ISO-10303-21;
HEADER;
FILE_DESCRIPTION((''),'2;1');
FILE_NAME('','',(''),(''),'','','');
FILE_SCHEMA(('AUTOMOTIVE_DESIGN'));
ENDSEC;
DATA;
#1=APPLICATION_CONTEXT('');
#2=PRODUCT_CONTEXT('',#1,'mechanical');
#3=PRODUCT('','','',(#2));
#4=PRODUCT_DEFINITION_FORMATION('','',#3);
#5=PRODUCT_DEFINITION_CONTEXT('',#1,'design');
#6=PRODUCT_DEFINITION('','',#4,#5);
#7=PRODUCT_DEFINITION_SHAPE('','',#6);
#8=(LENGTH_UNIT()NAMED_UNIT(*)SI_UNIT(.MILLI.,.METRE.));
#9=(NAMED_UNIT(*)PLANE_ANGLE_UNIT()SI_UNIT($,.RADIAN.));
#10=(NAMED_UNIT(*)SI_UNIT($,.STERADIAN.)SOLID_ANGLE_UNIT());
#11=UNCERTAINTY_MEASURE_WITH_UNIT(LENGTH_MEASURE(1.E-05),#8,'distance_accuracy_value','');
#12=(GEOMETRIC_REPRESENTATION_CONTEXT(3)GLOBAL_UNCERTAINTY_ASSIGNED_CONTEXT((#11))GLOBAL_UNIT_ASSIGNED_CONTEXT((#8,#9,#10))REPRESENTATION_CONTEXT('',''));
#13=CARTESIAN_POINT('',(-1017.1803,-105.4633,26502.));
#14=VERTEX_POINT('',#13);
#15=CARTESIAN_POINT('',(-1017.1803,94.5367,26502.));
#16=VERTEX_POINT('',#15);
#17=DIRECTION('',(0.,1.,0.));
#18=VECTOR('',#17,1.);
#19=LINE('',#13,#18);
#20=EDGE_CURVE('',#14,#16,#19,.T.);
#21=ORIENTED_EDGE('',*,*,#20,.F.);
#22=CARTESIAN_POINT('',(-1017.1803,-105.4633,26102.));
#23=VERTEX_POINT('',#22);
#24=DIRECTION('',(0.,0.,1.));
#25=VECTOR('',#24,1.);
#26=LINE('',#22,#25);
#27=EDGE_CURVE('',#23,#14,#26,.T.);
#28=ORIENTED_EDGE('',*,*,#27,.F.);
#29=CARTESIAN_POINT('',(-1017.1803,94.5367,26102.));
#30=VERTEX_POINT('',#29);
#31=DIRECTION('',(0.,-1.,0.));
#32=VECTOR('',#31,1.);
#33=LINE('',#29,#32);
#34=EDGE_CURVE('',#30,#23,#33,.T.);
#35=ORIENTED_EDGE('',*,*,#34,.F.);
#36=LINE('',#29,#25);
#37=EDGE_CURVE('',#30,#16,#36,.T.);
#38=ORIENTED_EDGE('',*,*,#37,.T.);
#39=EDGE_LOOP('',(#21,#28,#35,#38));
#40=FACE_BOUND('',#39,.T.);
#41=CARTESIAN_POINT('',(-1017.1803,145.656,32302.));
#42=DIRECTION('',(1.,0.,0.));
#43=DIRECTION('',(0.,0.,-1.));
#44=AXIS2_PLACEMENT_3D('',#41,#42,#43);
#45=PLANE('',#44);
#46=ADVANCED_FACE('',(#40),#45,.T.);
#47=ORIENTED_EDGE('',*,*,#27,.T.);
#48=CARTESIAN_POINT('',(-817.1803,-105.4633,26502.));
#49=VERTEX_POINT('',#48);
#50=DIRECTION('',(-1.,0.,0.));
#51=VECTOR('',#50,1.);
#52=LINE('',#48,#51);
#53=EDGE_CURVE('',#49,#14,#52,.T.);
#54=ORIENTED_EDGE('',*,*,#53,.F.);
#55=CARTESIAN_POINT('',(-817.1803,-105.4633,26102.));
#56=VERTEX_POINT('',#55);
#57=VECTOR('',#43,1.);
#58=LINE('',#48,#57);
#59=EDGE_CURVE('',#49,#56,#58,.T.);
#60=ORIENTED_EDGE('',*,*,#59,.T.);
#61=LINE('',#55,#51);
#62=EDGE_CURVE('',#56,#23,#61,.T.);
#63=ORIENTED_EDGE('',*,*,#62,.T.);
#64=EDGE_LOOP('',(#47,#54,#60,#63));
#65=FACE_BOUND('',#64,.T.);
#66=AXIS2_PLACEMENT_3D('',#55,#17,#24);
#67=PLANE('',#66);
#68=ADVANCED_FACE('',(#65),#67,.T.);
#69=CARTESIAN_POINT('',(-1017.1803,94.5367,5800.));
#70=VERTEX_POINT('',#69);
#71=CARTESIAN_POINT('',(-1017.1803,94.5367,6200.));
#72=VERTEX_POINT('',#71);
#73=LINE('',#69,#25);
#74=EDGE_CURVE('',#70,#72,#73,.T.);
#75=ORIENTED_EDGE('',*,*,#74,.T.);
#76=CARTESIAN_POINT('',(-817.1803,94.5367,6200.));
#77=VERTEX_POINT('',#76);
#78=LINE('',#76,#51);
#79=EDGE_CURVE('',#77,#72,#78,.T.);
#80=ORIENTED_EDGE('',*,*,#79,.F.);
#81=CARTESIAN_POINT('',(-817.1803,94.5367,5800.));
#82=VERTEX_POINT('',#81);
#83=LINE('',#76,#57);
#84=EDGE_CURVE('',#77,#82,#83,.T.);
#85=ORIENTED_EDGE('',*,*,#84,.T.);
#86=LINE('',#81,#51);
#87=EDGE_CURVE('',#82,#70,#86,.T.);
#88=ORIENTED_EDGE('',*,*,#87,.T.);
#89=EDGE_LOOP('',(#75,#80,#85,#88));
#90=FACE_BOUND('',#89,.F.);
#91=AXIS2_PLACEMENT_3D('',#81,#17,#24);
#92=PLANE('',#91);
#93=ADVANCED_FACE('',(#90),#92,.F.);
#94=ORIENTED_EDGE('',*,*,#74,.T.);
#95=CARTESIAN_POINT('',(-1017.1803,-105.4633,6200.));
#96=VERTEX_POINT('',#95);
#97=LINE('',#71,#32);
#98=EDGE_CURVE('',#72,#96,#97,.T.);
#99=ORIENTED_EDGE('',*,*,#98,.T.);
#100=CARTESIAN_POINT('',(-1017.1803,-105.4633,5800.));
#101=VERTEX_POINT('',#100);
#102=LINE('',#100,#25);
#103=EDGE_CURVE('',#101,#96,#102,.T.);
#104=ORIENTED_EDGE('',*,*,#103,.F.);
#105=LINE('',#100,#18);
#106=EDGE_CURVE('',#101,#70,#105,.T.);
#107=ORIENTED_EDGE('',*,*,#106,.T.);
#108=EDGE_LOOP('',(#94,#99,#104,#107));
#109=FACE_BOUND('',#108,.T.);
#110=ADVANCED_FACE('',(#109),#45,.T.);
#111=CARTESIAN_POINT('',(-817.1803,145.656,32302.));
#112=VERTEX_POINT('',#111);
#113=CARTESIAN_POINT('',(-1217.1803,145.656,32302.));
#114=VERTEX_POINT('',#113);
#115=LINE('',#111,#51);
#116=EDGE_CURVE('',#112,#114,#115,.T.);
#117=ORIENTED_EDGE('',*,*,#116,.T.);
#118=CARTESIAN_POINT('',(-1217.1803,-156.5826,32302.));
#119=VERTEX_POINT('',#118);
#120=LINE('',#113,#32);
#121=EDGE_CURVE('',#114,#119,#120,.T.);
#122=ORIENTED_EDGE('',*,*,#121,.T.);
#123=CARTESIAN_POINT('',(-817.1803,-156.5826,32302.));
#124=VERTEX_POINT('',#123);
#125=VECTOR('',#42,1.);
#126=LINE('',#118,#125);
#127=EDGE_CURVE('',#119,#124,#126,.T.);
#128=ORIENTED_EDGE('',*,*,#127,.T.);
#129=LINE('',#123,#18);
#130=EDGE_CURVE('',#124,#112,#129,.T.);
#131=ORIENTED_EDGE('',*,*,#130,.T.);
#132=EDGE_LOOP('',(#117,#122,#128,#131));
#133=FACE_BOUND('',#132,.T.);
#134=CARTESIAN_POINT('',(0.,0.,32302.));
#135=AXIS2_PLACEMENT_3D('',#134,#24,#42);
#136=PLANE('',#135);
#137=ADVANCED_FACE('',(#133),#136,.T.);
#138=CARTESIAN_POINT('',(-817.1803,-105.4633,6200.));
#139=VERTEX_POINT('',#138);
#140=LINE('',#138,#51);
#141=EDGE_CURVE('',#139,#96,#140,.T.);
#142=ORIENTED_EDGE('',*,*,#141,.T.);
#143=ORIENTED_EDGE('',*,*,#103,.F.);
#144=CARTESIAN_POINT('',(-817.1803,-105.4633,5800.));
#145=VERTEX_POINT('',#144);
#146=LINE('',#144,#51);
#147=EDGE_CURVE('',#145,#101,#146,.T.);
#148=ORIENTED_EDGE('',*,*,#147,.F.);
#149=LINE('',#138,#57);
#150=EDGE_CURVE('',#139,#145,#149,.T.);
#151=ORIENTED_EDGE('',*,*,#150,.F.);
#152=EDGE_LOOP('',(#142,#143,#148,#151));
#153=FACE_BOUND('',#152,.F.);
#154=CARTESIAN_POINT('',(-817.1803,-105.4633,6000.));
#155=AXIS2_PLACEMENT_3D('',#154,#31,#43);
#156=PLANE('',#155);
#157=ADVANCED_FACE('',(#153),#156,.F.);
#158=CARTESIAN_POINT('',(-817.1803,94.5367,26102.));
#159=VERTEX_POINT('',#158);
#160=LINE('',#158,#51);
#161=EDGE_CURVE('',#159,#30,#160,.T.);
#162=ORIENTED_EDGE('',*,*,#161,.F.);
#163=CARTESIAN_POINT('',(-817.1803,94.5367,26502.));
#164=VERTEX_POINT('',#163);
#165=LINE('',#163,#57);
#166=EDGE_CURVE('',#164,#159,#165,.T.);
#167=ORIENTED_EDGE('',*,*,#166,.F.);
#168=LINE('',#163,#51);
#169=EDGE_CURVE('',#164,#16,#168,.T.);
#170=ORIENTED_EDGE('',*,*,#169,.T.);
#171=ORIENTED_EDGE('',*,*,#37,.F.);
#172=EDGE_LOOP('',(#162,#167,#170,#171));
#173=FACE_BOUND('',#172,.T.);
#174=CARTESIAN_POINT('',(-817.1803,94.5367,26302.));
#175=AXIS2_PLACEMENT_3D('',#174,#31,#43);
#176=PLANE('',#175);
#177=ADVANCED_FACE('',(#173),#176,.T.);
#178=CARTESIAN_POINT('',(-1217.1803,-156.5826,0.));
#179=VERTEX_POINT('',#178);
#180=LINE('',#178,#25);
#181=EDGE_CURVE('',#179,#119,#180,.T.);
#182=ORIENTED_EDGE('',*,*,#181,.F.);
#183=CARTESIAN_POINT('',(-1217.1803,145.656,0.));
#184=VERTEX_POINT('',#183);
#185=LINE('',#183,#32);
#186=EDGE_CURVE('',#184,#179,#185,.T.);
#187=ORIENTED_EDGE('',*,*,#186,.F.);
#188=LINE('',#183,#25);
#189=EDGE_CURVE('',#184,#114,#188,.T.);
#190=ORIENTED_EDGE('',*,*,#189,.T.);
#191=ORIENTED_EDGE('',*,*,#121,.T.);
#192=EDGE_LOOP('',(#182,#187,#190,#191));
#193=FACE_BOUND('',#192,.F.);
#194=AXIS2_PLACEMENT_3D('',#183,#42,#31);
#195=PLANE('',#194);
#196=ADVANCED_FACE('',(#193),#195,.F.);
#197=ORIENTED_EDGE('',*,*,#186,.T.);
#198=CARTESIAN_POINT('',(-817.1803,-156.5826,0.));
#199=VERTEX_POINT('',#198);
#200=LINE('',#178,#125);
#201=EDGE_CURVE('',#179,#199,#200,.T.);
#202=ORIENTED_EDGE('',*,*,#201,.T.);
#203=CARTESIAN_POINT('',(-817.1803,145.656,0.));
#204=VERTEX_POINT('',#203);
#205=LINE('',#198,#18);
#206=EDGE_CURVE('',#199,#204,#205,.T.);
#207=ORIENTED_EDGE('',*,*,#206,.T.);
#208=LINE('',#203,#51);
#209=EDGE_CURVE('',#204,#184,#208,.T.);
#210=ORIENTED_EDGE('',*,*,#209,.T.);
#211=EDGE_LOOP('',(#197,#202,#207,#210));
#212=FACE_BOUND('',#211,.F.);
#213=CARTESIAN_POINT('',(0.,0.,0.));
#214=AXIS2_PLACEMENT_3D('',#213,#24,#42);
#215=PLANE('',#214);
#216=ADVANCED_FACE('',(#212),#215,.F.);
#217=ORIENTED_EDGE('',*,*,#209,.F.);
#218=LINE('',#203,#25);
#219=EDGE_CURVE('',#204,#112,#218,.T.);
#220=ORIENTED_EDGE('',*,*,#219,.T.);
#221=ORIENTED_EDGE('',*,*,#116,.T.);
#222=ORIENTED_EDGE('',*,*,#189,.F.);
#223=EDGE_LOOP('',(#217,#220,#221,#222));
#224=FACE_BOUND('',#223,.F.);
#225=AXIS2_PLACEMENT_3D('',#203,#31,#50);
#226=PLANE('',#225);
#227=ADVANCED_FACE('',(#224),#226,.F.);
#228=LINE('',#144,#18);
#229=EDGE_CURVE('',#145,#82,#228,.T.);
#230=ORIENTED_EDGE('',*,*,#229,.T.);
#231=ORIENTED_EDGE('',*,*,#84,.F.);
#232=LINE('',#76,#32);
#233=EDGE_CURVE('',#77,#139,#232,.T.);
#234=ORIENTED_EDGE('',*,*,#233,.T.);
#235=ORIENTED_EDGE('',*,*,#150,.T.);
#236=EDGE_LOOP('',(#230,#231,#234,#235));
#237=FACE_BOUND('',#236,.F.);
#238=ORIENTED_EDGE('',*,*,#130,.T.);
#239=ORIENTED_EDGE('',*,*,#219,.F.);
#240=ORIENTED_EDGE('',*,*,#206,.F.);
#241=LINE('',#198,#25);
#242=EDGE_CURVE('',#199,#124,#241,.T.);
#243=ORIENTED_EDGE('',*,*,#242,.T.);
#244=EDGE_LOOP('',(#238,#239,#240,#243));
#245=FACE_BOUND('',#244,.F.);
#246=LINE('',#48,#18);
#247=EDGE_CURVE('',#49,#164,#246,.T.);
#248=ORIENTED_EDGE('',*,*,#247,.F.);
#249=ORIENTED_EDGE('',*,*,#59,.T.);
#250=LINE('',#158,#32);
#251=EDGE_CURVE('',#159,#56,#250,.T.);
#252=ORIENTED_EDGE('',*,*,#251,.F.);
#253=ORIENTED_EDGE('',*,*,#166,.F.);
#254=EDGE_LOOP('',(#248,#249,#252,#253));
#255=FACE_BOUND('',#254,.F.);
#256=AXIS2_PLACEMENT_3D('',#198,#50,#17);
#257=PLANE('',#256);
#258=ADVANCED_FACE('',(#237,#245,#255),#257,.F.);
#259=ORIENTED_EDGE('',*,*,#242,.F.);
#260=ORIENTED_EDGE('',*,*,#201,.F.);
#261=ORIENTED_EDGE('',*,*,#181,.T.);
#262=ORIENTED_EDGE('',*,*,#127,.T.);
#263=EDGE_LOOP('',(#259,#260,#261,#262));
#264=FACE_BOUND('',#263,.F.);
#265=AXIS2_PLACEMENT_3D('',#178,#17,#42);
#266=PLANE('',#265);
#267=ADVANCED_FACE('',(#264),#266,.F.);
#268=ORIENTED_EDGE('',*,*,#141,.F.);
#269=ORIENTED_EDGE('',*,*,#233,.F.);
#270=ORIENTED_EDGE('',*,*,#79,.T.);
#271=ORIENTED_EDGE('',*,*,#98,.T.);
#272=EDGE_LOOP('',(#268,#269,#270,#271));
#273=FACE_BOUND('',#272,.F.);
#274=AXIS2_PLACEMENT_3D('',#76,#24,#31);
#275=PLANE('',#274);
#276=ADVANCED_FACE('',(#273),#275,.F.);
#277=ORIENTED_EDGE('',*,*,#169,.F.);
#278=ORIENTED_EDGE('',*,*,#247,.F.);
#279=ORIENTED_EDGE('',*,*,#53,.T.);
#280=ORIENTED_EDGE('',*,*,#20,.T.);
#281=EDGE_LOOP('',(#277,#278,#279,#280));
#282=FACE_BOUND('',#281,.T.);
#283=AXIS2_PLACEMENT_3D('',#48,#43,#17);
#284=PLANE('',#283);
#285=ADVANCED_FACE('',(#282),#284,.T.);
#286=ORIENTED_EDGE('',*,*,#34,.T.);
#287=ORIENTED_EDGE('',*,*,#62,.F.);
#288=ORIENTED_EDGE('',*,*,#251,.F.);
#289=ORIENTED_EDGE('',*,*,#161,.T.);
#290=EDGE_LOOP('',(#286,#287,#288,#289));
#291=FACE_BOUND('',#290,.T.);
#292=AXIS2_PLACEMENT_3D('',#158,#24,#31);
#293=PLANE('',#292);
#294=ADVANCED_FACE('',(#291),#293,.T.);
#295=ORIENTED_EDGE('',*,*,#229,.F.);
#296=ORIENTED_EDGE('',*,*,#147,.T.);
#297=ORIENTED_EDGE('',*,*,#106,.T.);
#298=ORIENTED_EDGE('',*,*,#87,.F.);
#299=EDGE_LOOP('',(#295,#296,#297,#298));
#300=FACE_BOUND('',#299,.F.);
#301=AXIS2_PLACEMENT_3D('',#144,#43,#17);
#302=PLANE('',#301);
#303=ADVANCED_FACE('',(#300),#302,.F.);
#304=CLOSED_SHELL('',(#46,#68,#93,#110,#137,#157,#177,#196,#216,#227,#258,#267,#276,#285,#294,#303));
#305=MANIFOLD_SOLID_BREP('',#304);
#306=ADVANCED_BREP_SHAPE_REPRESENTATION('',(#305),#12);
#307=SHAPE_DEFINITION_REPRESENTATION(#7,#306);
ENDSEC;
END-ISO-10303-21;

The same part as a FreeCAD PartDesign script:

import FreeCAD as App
import Part
import Sketcher
from FreeCAD import Vector


def add_polygon(sketch, points):
    """Adds a closed chain of lines whose ends are joined by coincident constraints."""
    first, n = sketch.GeometryCount, len(points)
    for a, b in zip(points, points[1:] + points[:1]):
        sketch.addGeometry(Part.LineSegment(App.Vector(*a, 0), App.Vector(*b, 0)), False)
    for i in range(n):
        sketch.addConstraint(Sketcher.Constraint("Coincident", first + i, 2, first + (i + 1) % n, 1))

doc = App.newDocument("Part")
body = doc.addObject("PartDesign::Body", "Body")

# Sketch on XY plane
sketch1 = doc.addObject("Sketcher::SketchObject", "Sketch")
body.addObject(sketch1)
sketch1.AttachmentSupport = (doc.XY_Plane, [""])
sketch1.MapMode = "FlatFace"
add_polygon(sketch1, [(-817, -157), (-817, 146), (-1217, 146), (-1217, -157)])  # lines 0-3
sketch1.addConstraint([
    Sketcher.Constraint("Vertical", 0),
    Sketcher.Constraint("Horizontal", 1),
    Sketcher.Constraint("Vertical", 2),
    Sketcher.Constraint("Horizontal", 3),
    Sketcher.Constraint("DistanceX", 1, 2, 1, 1, 400.0),
    Sketcher.Constraint("DistanceY", 0, 1, 0, 2, 302.2386),
    Sketcher.Constraint("DistanceY", -1, 1, 0, 2, 145.656),
    Sketcher.Constraint("DistanceX", 0, 2, -1, 1, 817.1803),
])
pad1 = doc.addObject("PartDesign::Pad", "Pad")
body.addObject(pad1)
pad1.Profile = sketch1
pad1.Length = 32302

# Sketch on YZ plane
sketch2 = doc.addObject("Sketcher::SketchObject", "Sketch001")
body.addObject(sketch2)
sketch2.AttachmentSupport = (doc.YZ_Plane, [""])
sketch2.MapMode = "FlatFace"
sketch2.AttachmentOffset = App.Placement(Vector(0, 0, -817.1803), App.Rotation())
add_polygon(sketch2, [(95, 26102), (95, 26502), (-105, 26502), (-105, 26102)])  # lines 0-3
add_polygon(sketch2, [(95, 5800), (95, 6200), (-105, 6200), (-105, 5800)])  # lines 4-7
sketch2.addConstraint([
    Sketcher.Constraint("Vertical", 0),
    Sketcher.Constraint("Horizontal", 1),
    Sketcher.Constraint("Vertical", 2),
    Sketcher.Constraint("Horizontal", 3),
    Sketcher.Constraint("Vertical", 4),
    Sketcher.Constraint("Horizontal", 5),
    Sketcher.Constraint("Vertical", 6),
    Sketcher.Constraint("Horizontal", 7),
    Sketcher.Constraint("Vertical", 3, 2, 4, 2),
    Sketcher.Constraint("Vertical", 2, 2, 5, 2),
    Sketcher.Constraint("Equal", 2, 4),
    Sketcher.Constraint("DistanceX", 1, 2, 1, 1, 200.0),
    Sketcher.Constraint("DistanceY", 0, 1, 0, 2, 400.0),
    Sketcher.Constraint("DistanceY", -1, 1, 0, 2, 26502.0),
    Sketcher.Constraint("DistanceY", -1, 1, 4, 2, 6200.0),
    Sketcher.Constraint("DistanceX", -1, 1, 0, 2, 94.5367),
])
pocket1 = doc.addObject("PartDesign::Pocket", "Pocket")
body.addObject(pocket1)
pocket1.Profile = sketch2
pocket1.Length = 200

doc.recompute()
